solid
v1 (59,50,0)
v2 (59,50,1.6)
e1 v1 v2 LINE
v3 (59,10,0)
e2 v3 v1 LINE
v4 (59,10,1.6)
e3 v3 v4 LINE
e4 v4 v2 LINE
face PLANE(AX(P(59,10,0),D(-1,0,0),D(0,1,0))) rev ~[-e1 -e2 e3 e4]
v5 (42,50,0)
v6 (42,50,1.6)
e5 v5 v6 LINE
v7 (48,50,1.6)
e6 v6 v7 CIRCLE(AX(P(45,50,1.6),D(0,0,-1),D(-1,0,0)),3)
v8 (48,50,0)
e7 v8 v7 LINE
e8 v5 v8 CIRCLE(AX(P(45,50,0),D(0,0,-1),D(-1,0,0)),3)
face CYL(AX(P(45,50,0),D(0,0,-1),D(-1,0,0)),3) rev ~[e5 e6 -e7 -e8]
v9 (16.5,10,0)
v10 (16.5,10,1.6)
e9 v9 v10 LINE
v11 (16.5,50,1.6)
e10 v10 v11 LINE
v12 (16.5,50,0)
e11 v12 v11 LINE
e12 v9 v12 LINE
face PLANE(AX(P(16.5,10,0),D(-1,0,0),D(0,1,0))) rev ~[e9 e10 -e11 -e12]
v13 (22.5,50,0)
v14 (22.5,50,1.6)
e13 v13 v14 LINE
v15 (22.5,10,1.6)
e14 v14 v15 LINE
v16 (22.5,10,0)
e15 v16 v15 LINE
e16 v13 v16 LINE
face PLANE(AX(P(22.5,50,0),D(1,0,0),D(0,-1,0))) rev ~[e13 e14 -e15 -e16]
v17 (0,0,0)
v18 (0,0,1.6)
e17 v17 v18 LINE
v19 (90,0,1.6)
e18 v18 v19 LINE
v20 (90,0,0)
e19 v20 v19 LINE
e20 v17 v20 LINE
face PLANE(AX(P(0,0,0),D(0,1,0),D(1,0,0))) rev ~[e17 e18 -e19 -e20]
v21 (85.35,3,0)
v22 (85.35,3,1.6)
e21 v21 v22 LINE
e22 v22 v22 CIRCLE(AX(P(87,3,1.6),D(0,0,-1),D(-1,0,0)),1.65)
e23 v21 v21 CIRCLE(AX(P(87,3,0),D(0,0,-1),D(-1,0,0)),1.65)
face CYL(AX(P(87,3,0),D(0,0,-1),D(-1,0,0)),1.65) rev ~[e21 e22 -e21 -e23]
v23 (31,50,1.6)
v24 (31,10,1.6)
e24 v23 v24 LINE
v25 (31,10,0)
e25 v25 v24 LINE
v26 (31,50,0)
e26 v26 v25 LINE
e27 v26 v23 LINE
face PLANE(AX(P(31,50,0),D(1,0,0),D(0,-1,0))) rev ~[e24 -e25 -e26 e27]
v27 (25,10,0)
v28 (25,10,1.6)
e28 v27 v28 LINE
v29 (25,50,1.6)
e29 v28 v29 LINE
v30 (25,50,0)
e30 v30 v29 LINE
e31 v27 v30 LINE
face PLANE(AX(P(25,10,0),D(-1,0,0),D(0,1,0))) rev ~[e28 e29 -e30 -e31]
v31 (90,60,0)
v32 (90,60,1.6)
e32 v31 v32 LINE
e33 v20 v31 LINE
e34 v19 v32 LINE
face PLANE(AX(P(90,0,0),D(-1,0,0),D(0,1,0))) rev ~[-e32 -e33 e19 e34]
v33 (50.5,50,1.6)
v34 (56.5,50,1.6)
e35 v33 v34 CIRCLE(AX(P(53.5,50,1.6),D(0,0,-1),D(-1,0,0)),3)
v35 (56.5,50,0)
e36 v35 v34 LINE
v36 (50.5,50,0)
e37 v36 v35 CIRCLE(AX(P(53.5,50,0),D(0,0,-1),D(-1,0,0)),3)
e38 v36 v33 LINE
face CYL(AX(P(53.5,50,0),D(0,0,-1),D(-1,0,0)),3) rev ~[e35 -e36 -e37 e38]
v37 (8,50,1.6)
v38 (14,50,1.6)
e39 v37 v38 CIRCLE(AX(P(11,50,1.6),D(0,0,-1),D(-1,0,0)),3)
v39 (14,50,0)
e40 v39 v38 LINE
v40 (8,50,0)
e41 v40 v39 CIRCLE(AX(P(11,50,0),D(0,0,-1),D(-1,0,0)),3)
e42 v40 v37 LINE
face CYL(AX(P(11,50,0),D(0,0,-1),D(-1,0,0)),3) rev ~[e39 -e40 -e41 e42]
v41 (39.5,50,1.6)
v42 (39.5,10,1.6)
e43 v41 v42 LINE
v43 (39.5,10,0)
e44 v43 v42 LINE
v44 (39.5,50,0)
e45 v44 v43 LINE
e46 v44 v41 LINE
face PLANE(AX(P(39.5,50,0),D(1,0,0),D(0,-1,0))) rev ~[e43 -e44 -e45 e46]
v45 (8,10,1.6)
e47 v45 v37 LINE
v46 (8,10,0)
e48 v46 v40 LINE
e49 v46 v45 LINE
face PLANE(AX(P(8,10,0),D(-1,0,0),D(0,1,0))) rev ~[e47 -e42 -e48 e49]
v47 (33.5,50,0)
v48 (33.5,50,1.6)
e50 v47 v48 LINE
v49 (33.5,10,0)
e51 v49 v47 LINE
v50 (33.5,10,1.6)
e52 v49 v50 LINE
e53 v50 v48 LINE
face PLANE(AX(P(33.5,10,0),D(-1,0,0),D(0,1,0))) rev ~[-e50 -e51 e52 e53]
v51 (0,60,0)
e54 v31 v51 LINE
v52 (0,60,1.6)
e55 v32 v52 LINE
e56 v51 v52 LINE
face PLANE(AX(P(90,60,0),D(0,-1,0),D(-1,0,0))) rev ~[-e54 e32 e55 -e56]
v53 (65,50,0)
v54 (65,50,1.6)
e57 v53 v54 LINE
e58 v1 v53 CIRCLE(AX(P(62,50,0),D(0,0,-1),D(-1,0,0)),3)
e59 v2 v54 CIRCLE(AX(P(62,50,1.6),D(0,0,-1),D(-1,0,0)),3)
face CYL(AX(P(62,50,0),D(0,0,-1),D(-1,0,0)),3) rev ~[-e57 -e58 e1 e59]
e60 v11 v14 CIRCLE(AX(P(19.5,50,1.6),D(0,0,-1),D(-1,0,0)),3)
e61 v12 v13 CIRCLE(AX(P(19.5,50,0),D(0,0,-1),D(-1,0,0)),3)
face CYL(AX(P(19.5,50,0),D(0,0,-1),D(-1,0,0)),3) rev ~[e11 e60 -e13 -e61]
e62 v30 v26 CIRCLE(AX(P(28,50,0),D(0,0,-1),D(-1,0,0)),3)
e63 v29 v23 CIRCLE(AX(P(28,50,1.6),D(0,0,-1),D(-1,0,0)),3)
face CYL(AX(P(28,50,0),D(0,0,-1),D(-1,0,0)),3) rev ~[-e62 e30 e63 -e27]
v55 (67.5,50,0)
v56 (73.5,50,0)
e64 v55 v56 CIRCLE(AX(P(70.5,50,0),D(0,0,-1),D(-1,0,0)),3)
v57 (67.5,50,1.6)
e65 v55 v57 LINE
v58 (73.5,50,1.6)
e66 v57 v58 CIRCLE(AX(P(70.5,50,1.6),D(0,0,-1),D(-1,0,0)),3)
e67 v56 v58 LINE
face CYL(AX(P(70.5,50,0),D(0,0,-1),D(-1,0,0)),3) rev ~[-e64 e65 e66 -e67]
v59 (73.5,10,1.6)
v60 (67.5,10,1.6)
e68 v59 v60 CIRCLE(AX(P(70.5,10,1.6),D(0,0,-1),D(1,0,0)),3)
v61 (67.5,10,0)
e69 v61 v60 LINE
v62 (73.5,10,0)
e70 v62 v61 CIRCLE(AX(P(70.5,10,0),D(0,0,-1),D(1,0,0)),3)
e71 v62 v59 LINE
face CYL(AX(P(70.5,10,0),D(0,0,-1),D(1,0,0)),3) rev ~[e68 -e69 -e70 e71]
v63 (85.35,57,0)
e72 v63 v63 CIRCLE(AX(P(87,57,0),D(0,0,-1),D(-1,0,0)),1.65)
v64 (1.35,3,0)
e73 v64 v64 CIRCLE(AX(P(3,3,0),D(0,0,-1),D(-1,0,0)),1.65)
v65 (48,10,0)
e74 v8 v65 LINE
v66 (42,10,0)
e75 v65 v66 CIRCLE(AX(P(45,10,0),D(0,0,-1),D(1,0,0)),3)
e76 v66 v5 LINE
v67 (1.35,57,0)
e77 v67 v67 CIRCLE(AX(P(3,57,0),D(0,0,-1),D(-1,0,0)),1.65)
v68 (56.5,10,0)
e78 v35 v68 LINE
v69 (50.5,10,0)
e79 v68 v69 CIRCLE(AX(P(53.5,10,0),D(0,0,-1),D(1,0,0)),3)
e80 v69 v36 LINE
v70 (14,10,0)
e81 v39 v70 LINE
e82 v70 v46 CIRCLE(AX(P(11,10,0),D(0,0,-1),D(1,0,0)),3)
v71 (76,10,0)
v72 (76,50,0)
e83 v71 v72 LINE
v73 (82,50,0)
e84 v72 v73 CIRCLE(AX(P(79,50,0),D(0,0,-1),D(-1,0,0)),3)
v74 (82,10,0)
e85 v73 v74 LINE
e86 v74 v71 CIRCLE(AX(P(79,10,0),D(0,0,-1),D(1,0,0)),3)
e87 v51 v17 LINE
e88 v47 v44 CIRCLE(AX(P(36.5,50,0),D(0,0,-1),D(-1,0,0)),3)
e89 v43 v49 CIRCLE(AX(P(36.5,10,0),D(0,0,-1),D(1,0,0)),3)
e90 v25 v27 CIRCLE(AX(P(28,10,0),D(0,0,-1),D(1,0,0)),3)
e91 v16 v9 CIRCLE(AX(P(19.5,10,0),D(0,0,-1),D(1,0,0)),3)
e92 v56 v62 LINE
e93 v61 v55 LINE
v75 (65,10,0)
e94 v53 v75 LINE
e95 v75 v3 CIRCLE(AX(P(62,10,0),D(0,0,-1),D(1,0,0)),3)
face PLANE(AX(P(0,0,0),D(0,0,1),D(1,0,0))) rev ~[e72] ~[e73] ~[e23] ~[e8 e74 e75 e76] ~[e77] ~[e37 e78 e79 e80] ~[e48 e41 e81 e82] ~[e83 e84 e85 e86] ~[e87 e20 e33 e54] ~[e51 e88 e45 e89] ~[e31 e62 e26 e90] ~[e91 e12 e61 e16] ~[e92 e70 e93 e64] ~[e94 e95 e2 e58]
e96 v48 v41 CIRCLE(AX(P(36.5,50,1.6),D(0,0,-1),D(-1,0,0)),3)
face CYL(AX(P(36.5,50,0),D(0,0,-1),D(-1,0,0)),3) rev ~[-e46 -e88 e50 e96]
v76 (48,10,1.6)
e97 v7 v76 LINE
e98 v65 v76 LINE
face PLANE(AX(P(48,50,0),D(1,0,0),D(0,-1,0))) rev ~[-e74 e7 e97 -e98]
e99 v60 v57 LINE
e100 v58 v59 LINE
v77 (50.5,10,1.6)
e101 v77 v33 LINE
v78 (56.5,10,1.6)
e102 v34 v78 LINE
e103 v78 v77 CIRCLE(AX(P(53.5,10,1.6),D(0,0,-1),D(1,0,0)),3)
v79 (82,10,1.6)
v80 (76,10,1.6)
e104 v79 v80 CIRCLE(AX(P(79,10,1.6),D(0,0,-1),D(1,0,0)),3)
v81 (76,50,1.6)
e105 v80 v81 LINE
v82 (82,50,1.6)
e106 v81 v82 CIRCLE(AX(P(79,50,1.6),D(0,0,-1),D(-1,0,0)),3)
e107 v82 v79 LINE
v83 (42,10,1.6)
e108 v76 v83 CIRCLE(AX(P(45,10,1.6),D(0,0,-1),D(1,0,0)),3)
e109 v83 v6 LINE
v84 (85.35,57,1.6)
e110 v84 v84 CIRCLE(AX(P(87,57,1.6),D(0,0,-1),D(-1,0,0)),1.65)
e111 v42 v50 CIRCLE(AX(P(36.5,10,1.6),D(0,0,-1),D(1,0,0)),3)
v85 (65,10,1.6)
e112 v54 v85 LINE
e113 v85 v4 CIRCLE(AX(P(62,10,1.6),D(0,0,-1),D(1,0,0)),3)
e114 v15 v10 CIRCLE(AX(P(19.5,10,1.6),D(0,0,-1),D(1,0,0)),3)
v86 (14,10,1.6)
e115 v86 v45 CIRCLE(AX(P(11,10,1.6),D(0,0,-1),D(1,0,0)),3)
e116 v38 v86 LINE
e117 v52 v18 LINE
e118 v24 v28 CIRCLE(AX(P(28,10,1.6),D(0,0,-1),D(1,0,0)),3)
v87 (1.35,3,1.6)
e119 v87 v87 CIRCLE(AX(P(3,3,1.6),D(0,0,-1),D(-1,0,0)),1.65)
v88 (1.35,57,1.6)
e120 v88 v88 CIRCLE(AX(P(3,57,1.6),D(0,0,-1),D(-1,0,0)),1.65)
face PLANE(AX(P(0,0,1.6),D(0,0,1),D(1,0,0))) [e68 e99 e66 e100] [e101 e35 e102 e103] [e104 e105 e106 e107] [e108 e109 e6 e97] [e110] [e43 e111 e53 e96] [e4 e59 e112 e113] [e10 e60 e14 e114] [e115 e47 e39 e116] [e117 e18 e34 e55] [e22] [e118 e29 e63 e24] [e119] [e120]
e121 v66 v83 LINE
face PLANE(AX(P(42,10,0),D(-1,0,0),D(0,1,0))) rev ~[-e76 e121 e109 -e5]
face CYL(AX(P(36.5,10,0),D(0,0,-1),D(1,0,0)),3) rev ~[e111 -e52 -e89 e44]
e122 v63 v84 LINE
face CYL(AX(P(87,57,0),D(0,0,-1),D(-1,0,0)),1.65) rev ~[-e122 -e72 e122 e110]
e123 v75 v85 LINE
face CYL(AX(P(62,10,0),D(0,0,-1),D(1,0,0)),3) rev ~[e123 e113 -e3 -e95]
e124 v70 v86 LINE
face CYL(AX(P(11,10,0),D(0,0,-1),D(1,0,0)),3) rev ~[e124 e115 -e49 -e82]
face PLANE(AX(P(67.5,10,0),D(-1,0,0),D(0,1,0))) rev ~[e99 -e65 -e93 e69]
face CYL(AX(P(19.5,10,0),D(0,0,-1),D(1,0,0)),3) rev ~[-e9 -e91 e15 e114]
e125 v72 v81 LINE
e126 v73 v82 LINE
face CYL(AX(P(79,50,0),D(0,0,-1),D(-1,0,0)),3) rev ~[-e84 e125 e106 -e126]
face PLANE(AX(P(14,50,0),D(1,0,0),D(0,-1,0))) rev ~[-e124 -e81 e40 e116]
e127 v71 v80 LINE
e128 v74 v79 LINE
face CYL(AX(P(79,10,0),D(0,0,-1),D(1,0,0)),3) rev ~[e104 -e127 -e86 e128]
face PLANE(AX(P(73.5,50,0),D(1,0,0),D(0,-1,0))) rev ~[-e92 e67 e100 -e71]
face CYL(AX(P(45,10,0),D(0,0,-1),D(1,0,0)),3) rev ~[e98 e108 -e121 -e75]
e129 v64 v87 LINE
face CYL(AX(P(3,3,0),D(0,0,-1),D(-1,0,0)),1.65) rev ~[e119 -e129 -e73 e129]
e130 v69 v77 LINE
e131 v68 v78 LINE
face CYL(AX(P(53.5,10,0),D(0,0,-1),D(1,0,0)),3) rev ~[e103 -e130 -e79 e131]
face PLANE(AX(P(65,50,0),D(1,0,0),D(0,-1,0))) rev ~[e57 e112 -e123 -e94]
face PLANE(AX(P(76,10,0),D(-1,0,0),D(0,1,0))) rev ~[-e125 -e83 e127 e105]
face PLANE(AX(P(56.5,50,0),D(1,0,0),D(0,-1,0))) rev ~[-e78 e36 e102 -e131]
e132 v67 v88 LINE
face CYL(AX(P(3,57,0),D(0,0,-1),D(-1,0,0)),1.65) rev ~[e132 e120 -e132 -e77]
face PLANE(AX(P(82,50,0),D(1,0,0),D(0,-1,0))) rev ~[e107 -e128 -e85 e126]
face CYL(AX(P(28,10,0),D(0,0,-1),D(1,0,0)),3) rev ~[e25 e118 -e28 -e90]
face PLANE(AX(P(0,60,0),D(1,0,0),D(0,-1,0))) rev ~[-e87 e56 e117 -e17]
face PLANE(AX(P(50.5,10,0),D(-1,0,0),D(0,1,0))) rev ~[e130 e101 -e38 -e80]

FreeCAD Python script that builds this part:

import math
import FreeCAD as App
import Part
import Sketcher
from FreeCAD import Vector
Q = App.Units.Quantity


def add_polygon(sketch, points):
    """Adds a closed chain of lines whose ends are joined by coincident constraints."""
    first, n = sketch.GeometryCount, len(points)
    for a, b in zip(points, points[1:] + points[:1]):
        sketch.addGeometry(Part.LineSegment(App.Vector(*a, 0), App.Vector(*b, 0)), False)
    for i in range(n):
        sketch.addConstraint(Sketcher.Constraint("Coincident", first + i, 2, first + (i + 1) % n, 1))

doc = App.newDocument("Part")
body = doc.addObject("PartDesign::Body", "Body")

# Sketch on XY plane
sketch1 = body.newObject("Sketcher::SketchObject", "Sketch")
sketch1.AttachmentSupport = (doc.getObject("XY_Plane"), [""])
sketch1.MapMode = "FlatFace"
add_polygon(sketch1, [(0, 60), (0, 0), (90, 0), (90, 60)])  # lines 0-3
sketch1.addConstraint([
    Sketcher.Constraint("Vertical", 0),
    Sketcher.Constraint("Horizontal", 1),
    Sketcher.Constraint("Vertical", 2),
    Sketcher.Constraint("Horizontal", 3),
    Sketcher.Constraint("Coincident", 0, 2, -1, 1),
    Sketcher.Constraint("DistanceX", 1, 1, 1, 2, Q("90 mm")),
    Sketcher.Constraint("DistanceY", 0, 2, 0, 1, Q("60 mm")),
])
pad1 = body.newObject("PartDesign::Pad", "Pad")
pad1.Profile = sketch1
pad1.Length = 1.6

# Sketch on XY plane
sketch2 = body.newObject("Sketcher::SketchObject", "Sketch001")
sketch2.AttachmentSupport = (doc.getObject("XY_Plane"), [""])
sketch2.MapMode = "FlatFace"
sketch2.addGeometry([
    Part.Circle(Vector(3, 3, 0), Vector(0, 0, 1), 1.6),  # 0
    Part.ArcOfCircle(Part.Circle(Vector(11, 50, 0), Vector(0, 0, 1), 3), math.radians(0), math.radians(180)),  # 1
    Part.LineSegment(Vector(14, 50, 0), Vector(14, 10, 0)),  # 2
    Part.ArcOfCircle(Part.Circle(Vector(11, 10, 0), Vector(0, 0, 1), 3), math.radians(180), math.radians(360)),  # 3
    Part.LineSegment(Vector(8, 10, 0), Vector(8, 50, 0)),  # 4
    Part.ArcOfCircle(Part.Circle(Vector(45, 50, 0), Vector(0, 0, 1), 3), math.radians(0), math.radians(180)),  # 5
    Part.LineSegment(Vector(48, 50, 0), Vector(48, 10, 0)),  # 6
    Part.ArcOfCircle(Part.Circle(Vector(45, 10, 0), Vector(0, 0, 1), 3), math.radians(180), math.radians(360)),  # 7
    Part.LineSegment(Vector(42, 10, 0), Vector(42, 50, 0)),  # 8
    Part.ArcOfCircle(Part.Circle(Vector(36.5, 50, 0), Vector(0, 0, 1), 3), math.radians(0), math.radians(180)),  # 9
    Part.LineSegment(Vector(39.5, 50, 0), Vector(39.5, 10, 0)),  # 10
    Part.ArcOfCircle(Part.Circle(Vector(36.5, 10, 0), Vector(0, 0, 1), 3), math.radians(180), math.radians(360)),  # 11
    Part.LineSegment(Vector(33.5, 10, 0), Vector(33.5, 50, 0)),  # 12
    Part.ArcOfCircle(Part.Circle(Vector(28, 50, 0), Vector(0, 0, 1), 3), math.radians(0), math.radians(180)),  # 13
    Part.LineSegment(Vector(31, 50, 0), Vector(31, 10, 0)),  # 14
    Part.ArcOfCircle(Part.Circle(Vector(28, 10, 0), Vector(0, 0, 1), 3), math.radians(180), math.radians(360)),  # 15
    Part.LineSegment(Vector(25, 10, 0), Vector(25, 50, 0)),  # 16
    Part.ArcOfCircle(Part.Circle(Vector(19.5, 50, 0), Vector(0, 0, 1), 3), math.radians(0), math.radians(180)),  # 17
    Part.LineSegment(Vector(22.5, 50, 0), Vector(22.5, 10, 0)),  # 18
    Part.ArcOfCircle(Part.Circle(Vector(19.5, 10, 0), Vector(0, 0, 1), 3), math.radians(180), math.radians(360)),  # 19
    Part.LineSegment(Vector(16.5, 10, 0), Vector(16.5, 50, 0)),  # 20
    Part.ArcOfCircle(Part.Circle(Vector(62, 50, 0), Vector(0, 0, 1), 3), math.radians(0), math.radians(180)),  # 21
    Part.LineSegment(Vector(65, 50, 0), Vector(65, 10, 0)),  # 22
    Part.ArcOfCircle(Part.Circle(Vector(62, 10, 0), Vector(0, 0, 1), 3), math.radians(180), math.radians(360)),  # 23
    Part.LineSegment(Vector(59, 10, 0), Vector(59, 50, 0)),  # 24
    Part.ArcOfCircle(Part.Circle(Vector(70.5, 50, 0), Vector(0, 0, 1), 3), math.radians(0), math.radians(180)),  # 25
    Part.LineSegment(Vector(73.5, 50, 0), Vector(73.5, 10, 0)),  # 26
    Part.ArcOfCircle(Part.Circle(Vector(70.5, 10, 0), Vector(0, 0, 1), 3), math.radians(180), math.radians(360)),  # 27
    Part.LineSegment(Vector(67.5, 10, 0), Vector(67.5, 50, 0)),  # 28
    Part.ArcOfCircle(Part.Circle(Vector(79, 50, 0), Vector(0, 0, 1), 3), math.radians(0), math.radians(180)),  # 29
    Part.LineSegment(Vector(82, 50, 0), Vector(82, 10, 0)),  # 30
    Part.ArcOfCircle(Part.Circle(Vector(79, 10, 0), Vector(0, 0, 1), 3), math.radians(180), math.radians(360)),  # 31
    Part.LineSegment(Vector(76, 10, 0), Vector(76, 50, 0)),  # 32
    Part.ArcOfCircle(Part.Circle(Vector(53.5, 10, 0), Vector(0, 0, 1), 3), math.radians(180), math.radians(360)),  # 33
    Part.LineSegment(Vector(50.5, 10, 0), Vector(50.5, 50, 0)),  # 34
    Part.ArcOfCircle(Part.Circle(Vector(53.5, 50, 0), Vector(0, 0, 1), 3), math.radians(0), math.radians(180)),  # 35
    Part.LineSegment(Vector(56.5, 50, 0), Vector(56.5, 10, 0)),  # 36
    Part.Circle(Vector(87, 3, 0), Vector(0, 0, 1), 1.6),  # 37
    Part.Circle(Vector(87, 57, 0), Vector(0, 0, 1), 1.6),  # 38
    Part.Circle(Vector(3, 57, 0), Vector(0, 0, 1), 1.6),  # 39
], False)
sketch2.addConstraint([
    Sketcher.Constraint("Tangent", 1, 1, 2, 1),
    Sketcher.Constraint("Tangent", 2, 2, 3, 2),
    Sketcher.Constraint("Tangent", 3, 1, 4, 1),
    Sketcher.Constraint("Tangent", 4, 2, 1, 2),
    Sketcher.Constraint("Tangent", 5, 1, 6, 1),
    Sketcher.Constraint("Tangent", 6, 2, 7, 2),
    Sketcher.Constraint("Tangent", 7, 1, 8, 1),
    Sketcher.Constraint("Tangent", 8, 2, 5, 2),
    Sketcher.Constraint("Tangent", 9, 1, 10, 1),
    Sketcher.Constraint("Tangent", 10, 2, 11, 2),
    Sketcher.Constraint("Tangent", 11, 1, 12, 1),
    Sketcher.Constraint("Tangent", 12, 2, 9, 2),
    Sketcher.Constraint("Tangent", 13, 1, 14, 1),
    Sketcher.Constraint("Tangent", 14, 2, 15, 2),
    Sketcher.Constraint("Tangent", 15, 1, 16, 1),
    Sketcher.Constraint("Tangent", 16, 2, 13, 2),
    Sketcher.Constraint("Tangent", 17, 1, 18, 1),
    Sketcher.Constraint("Tangent", 18, 2, 19, 2),
    Sketcher.Constraint("Tangent", 19, 1, 20, 1),
    Sketcher.Constraint("Tangent", 20, 2, 17, 2),
    Sketcher.Constraint("Tangent", 21, 1, 22, 1),
    Sketcher.Constraint("Tangent", 22, 2, 23, 2),
    Sketcher.Constraint("Tangent", 23, 1, 24, 1),
    Sketcher.Constraint("Tangent", 24, 2, 21, 2),
    Sketcher.Constraint("Tangent", 25, 1, 26, 1),
    Sketcher.Constraint("Tangent", 26, 2, 27, 2),
    Sketcher.Constraint("Tangent", 27, 1, 28, 1),
    Sketcher.Constraint("Tangent", 28, 2, 25, 2),
    Sketcher.Constraint("Tangent", 29, 1, 30, 1),
    Sketcher.Constraint("Tangent", 30, 2, 31, 2),
    Sketcher.Constraint("Tangent", 31, 1, 32, 1),
    Sketcher.Constraint("Tangent", 32, 2, 29, 2),
    Sketcher.Constraint("Tangent", 33, 1, 34, 1),
    Sketcher.Constraint("Tangent", 34, 2, 35, 2),
    Sketcher.Constraint("Tangent", 35, 1, 36, 1),
    Sketcher.Constraint("Tangent", 36, 2, 33, 2),
    Sketcher.Constraint("Vertical", 2),
    Sketcher.Constraint("Vertical", 4),
    Sketcher.Constraint("Vertical", 6),
    Sketcher.Constraint("Vertical", 8),
    Sketcher.Constraint("Vertical", 10),
    Sketcher.Constraint("Vertical", 12),
    Sketcher.Constraint("Vertical", 14),
    Sketcher.Constraint("Vertical", 16),
    Sketcher.Constraint("Vertical", 18),
    Sketcher.Constraint("Vertical", 20),
    Sketcher.Constraint("Vertical", 22),
    Sketcher.Constraint("Vertical", 24),
    Sketcher.Constraint("Vertical", 26),
    Sketcher.Constraint("Vertical", 28),
    Sketcher.Constraint("Vertical", 30),
    Sketcher.Constraint("Vertical", 32),
    Sketcher.Constraint("Vertical", 34),
    Sketcher.Constraint("Vertical", 36),
    Sketcher.Constraint("Equal", 3, 5),
    Sketcher.Constraint("Equal", 7, 9),
    Sketcher.Constraint("Equal", 11, 13),
    Sketcher.Constraint("Equal", 15, 17),
    Sketcher.Constraint("Equal", 19, 21),
    Sketcher.Constraint("Equal", 23, 25),
    Sketcher.Constraint("Equal", 27, 29),
    Sketcher.Constraint("Equal", 31, 33),
    Sketcher.Constraint("Equal", 0, 37),
    Sketcher.Constraint("Equal", 37, 38),
    Sketcher.Constraint("Equal", 38, 39),
    Sketcher.Constraint("Horizontal", 1, 3, 5, 3),
    Sketcher.Constraint("Horizontal", 3, 3, 7, 3),
    Sketcher.Constraint("Horizontal", 5, 3, 9, 3),
    Sketcher.Constraint("Horizontal", 7, 3, 11, 3),
    Sketcher.Constraint("Horizontal", 9, 3, 13, 3),
    Sketcher.Constraint("Horizontal", 11, 3, 15, 3),
    Sketcher.Constraint("Horizontal", 13, 3, 17, 3),
    Sketcher.Constraint("Horizontal", 15, 3, 19, 3),
    Sketcher.Constraint("Horizontal", 17, 3, 21, 3),
    Sketcher.Constraint("Horizontal", 19, 3, 23, 3),
    Sketcher.Constraint("Horizontal", 21, 3, 25, 3),
    Sketcher.Constraint("Horizontal", 23, 3, 27, 3),
    Sketcher.Constraint("Horizontal", 25, 3, 29, 3),
    Sketcher.Constraint("Horizontal", 27, 3, 31, 3),
    Sketcher.Constraint("Horizontal", 31, 3, 33, 3),
    Sketcher.Constraint("Horizontal", 29, 3, 35, 3),
    Sketcher.Constraint("Horizontal", 0, 3, 37, 3),
    Sketcher.Constraint("Horizontal", 38, 3, 39, 3),
    Sketcher.Constraint("Vertical", 37, 3, 38, 3),
    Sketcher.Constraint("Vertical", 0, 3, 39, 3),
    Sketcher.Constraint("Radius", 1, Q("3 mm")),
    Sketcher.Constraint("Diameter", 0, Q("3.3 mm")),
    Sketcher.Constraint("DistanceY", 2, 2, 2, 1, Q("40 mm")),
    Sketcher.Constraint("DistanceX", -1, 1, 0, 3, Q("3 mm")),
    Sketcher.Constraint("DistanceY", -1, 1, 0, 3, Q("3 mm")),
    Sketcher.Constraint("DistanceX", -1, 1, 1, 3, Q("11 mm")),
    Sketcher.Constraint("DistanceY", -1, 1, 1, 3, Q("50 mm")),
    Sketcher.Constraint("DistanceX", -1, 1, 5, 3, Q("45 mm")),
    Sketcher.Constraint("DistanceX", -1, 1, 13, 3, Q("28 mm")),
    Sketcher.Constraint("DistanceX", -1, 1, 21, 3, Q("62 mm")),
    Sketcher.Constraint("DistanceX", -1, 1, 29, 3, Q("79 mm")),
    Sketcher.Constraint("DistanceX", -1, 1, 37, 3, Q("87 mm")),
    Sketcher.Constraint("DistanceY", -1, 1, 38, 3, Q("57 mm")),
    Sketcher.Constraint("DistanceX", 17, 3, 9, 3, Q("17 mm")),
    Sketcher.Constraint("DistanceX", 9, 3, 25, 3, Q("34 mm")),
    Sketcher.Constraint("DistanceX", 11, 3, 33, 3, Q("17 mm")),
    Sketcher.Constraint("DistanceX", -1, 1, 9, 3, Q("36.5 mm")),
])
pocket1 = body.newObject("PartDesign::Pocket", "Pocket")
pocket1.Profile = sketch2
pocket1.Length = 1.6
pocket1.Reversed = True

doc.recompute()
